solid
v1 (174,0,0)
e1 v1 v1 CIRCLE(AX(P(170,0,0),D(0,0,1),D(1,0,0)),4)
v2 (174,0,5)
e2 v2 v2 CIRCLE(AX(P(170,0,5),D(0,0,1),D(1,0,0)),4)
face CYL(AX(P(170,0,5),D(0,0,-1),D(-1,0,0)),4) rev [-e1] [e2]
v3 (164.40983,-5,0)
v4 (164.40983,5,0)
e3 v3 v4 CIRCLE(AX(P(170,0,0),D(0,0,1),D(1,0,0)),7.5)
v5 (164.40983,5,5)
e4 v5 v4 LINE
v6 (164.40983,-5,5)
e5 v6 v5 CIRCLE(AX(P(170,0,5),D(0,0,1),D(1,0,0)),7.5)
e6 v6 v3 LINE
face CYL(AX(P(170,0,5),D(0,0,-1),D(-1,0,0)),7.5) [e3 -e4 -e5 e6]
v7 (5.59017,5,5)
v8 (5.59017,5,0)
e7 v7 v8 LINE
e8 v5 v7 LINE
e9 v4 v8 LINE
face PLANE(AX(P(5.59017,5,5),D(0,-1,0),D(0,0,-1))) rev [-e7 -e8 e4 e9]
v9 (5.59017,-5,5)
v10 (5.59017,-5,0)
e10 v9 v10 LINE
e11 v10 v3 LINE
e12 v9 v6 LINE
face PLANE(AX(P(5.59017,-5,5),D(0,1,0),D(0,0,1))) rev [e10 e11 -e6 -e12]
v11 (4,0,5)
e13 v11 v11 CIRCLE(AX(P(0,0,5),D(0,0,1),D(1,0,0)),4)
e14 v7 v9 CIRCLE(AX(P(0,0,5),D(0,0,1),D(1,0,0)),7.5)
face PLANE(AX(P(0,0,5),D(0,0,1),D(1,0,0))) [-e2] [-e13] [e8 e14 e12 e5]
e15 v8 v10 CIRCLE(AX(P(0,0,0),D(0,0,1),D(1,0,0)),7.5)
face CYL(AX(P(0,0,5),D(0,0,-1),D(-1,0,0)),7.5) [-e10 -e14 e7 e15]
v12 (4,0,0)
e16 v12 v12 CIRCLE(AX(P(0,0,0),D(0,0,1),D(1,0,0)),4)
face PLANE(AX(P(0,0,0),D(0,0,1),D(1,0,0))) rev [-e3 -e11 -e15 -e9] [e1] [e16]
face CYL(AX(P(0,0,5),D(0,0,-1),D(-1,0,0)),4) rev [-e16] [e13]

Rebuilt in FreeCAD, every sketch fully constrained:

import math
import FreeCAD as App
import Part
import Sketcher
Q = App.Units.Quantity

doc = App.newDocument("Part")
params = doc.addObject("Spreadsheet::Sheet", "Params")
for row, (alias, value) in enumerate([
    ("sketch1_diameter", "8 mm"),
    ("sketch1_radius", "7.5 mm"),
    ("pad1_length", "5 mm"),
], start=1):
    params.set(f"A{row}", alias)
    params.set(f"B{row}", "=" + value)
    params.setAlias(f"B{row}", alias)

body = doc.addObject("PartDesign::Body", "Body")

sketch1 = body.newObject("Sketcher::SketchObject", "Sketch")
sketch1.AttachmentSupport = (doc.getObject("XY_Plane"), [""])
sketch1.MapMode = "FlatFace"
sketch1.addGeometry([
    Part.LineSegment(App.Vector(5.59017, -5, 0), App.Vector(164.40983, -5, 0)),
    Part.ArcOfCircle(Part.Circle(App.Vector(170, 0, 0), App.Vector(0, 0, 1), 7.5), math.radians(-138.189685), math.radians(138.189685)),
    Part.LineSegment(App.Vector(164.40983, 5, 0), App.Vector(5.59017, 5, 0)),
    Part.ArcOfCircle(Part.Circle(App.Vector(0, 0, 0), App.Vector(0, 0, 1), 7.5), math.radians(41.810315), math.radians(318.189685)),
    Part.Circle(App.Vector(0, 0, 0), App.Vector(0, 0, 1), 4),
    Part.Circle(App.Vector(170, 0, 0), App.Vector(0, 0, 1), 4),
], False)
sketch1.addConstraint([
    Sketcher.Constraint("Coincident", 0, 2, 1, 1),
    Sketcher.Constraint("Coincident", 1, 2, 2, 1),
    Sketcher.Constraint("Coincident", 2, 2, 3, 1),
    Sketcher.Constraint("Coincident", 3, 2, 0, 1),
    Sketcher.Constraint("Horizontal", 0),
    Sketcher.Constraint("Horizontal", 2),
    Sketcher.Constraint("Coincident", 3, 3, -1, 1),
    Sketcher.Constraint("Coincident", 4, 3, -1, 1),
    Sketcher.Constraint("Coincident", 5, 3, 1, 3),
    Sketcher.Constraint("Equal", 1, 3),
    Sketcher.Constraint("Equal", 4, 5),
    Sketcher.Constraint("Symmetric", 0, 2, 1, 2, -1),
    Sketcher.Constraint("Diameter", 4, Q("8 mm")),
    Sketcher.Constraint("Radius", 1, Q("7.5 mm")),
    Sketcher.Constraint("DistanceX", -1, 1, 1, 3, Q("170 mm")),
    Sketcher.Constraint("DistanceY", 0, 2, -1, 1, Q("5 mm")),
])
sketch1.setExpression("Constraints[12]", "Params.sketch1_diameter")
sketch1.setExpression("Constraints[13]", "Params.sketch1_radius")
pad1 = body.newObject("PartDesign::Pad", "Pad")
pad1.Profile = sketch1
pad1.setExpression("Length", "Params.pad1_length")

doc.recompute()
